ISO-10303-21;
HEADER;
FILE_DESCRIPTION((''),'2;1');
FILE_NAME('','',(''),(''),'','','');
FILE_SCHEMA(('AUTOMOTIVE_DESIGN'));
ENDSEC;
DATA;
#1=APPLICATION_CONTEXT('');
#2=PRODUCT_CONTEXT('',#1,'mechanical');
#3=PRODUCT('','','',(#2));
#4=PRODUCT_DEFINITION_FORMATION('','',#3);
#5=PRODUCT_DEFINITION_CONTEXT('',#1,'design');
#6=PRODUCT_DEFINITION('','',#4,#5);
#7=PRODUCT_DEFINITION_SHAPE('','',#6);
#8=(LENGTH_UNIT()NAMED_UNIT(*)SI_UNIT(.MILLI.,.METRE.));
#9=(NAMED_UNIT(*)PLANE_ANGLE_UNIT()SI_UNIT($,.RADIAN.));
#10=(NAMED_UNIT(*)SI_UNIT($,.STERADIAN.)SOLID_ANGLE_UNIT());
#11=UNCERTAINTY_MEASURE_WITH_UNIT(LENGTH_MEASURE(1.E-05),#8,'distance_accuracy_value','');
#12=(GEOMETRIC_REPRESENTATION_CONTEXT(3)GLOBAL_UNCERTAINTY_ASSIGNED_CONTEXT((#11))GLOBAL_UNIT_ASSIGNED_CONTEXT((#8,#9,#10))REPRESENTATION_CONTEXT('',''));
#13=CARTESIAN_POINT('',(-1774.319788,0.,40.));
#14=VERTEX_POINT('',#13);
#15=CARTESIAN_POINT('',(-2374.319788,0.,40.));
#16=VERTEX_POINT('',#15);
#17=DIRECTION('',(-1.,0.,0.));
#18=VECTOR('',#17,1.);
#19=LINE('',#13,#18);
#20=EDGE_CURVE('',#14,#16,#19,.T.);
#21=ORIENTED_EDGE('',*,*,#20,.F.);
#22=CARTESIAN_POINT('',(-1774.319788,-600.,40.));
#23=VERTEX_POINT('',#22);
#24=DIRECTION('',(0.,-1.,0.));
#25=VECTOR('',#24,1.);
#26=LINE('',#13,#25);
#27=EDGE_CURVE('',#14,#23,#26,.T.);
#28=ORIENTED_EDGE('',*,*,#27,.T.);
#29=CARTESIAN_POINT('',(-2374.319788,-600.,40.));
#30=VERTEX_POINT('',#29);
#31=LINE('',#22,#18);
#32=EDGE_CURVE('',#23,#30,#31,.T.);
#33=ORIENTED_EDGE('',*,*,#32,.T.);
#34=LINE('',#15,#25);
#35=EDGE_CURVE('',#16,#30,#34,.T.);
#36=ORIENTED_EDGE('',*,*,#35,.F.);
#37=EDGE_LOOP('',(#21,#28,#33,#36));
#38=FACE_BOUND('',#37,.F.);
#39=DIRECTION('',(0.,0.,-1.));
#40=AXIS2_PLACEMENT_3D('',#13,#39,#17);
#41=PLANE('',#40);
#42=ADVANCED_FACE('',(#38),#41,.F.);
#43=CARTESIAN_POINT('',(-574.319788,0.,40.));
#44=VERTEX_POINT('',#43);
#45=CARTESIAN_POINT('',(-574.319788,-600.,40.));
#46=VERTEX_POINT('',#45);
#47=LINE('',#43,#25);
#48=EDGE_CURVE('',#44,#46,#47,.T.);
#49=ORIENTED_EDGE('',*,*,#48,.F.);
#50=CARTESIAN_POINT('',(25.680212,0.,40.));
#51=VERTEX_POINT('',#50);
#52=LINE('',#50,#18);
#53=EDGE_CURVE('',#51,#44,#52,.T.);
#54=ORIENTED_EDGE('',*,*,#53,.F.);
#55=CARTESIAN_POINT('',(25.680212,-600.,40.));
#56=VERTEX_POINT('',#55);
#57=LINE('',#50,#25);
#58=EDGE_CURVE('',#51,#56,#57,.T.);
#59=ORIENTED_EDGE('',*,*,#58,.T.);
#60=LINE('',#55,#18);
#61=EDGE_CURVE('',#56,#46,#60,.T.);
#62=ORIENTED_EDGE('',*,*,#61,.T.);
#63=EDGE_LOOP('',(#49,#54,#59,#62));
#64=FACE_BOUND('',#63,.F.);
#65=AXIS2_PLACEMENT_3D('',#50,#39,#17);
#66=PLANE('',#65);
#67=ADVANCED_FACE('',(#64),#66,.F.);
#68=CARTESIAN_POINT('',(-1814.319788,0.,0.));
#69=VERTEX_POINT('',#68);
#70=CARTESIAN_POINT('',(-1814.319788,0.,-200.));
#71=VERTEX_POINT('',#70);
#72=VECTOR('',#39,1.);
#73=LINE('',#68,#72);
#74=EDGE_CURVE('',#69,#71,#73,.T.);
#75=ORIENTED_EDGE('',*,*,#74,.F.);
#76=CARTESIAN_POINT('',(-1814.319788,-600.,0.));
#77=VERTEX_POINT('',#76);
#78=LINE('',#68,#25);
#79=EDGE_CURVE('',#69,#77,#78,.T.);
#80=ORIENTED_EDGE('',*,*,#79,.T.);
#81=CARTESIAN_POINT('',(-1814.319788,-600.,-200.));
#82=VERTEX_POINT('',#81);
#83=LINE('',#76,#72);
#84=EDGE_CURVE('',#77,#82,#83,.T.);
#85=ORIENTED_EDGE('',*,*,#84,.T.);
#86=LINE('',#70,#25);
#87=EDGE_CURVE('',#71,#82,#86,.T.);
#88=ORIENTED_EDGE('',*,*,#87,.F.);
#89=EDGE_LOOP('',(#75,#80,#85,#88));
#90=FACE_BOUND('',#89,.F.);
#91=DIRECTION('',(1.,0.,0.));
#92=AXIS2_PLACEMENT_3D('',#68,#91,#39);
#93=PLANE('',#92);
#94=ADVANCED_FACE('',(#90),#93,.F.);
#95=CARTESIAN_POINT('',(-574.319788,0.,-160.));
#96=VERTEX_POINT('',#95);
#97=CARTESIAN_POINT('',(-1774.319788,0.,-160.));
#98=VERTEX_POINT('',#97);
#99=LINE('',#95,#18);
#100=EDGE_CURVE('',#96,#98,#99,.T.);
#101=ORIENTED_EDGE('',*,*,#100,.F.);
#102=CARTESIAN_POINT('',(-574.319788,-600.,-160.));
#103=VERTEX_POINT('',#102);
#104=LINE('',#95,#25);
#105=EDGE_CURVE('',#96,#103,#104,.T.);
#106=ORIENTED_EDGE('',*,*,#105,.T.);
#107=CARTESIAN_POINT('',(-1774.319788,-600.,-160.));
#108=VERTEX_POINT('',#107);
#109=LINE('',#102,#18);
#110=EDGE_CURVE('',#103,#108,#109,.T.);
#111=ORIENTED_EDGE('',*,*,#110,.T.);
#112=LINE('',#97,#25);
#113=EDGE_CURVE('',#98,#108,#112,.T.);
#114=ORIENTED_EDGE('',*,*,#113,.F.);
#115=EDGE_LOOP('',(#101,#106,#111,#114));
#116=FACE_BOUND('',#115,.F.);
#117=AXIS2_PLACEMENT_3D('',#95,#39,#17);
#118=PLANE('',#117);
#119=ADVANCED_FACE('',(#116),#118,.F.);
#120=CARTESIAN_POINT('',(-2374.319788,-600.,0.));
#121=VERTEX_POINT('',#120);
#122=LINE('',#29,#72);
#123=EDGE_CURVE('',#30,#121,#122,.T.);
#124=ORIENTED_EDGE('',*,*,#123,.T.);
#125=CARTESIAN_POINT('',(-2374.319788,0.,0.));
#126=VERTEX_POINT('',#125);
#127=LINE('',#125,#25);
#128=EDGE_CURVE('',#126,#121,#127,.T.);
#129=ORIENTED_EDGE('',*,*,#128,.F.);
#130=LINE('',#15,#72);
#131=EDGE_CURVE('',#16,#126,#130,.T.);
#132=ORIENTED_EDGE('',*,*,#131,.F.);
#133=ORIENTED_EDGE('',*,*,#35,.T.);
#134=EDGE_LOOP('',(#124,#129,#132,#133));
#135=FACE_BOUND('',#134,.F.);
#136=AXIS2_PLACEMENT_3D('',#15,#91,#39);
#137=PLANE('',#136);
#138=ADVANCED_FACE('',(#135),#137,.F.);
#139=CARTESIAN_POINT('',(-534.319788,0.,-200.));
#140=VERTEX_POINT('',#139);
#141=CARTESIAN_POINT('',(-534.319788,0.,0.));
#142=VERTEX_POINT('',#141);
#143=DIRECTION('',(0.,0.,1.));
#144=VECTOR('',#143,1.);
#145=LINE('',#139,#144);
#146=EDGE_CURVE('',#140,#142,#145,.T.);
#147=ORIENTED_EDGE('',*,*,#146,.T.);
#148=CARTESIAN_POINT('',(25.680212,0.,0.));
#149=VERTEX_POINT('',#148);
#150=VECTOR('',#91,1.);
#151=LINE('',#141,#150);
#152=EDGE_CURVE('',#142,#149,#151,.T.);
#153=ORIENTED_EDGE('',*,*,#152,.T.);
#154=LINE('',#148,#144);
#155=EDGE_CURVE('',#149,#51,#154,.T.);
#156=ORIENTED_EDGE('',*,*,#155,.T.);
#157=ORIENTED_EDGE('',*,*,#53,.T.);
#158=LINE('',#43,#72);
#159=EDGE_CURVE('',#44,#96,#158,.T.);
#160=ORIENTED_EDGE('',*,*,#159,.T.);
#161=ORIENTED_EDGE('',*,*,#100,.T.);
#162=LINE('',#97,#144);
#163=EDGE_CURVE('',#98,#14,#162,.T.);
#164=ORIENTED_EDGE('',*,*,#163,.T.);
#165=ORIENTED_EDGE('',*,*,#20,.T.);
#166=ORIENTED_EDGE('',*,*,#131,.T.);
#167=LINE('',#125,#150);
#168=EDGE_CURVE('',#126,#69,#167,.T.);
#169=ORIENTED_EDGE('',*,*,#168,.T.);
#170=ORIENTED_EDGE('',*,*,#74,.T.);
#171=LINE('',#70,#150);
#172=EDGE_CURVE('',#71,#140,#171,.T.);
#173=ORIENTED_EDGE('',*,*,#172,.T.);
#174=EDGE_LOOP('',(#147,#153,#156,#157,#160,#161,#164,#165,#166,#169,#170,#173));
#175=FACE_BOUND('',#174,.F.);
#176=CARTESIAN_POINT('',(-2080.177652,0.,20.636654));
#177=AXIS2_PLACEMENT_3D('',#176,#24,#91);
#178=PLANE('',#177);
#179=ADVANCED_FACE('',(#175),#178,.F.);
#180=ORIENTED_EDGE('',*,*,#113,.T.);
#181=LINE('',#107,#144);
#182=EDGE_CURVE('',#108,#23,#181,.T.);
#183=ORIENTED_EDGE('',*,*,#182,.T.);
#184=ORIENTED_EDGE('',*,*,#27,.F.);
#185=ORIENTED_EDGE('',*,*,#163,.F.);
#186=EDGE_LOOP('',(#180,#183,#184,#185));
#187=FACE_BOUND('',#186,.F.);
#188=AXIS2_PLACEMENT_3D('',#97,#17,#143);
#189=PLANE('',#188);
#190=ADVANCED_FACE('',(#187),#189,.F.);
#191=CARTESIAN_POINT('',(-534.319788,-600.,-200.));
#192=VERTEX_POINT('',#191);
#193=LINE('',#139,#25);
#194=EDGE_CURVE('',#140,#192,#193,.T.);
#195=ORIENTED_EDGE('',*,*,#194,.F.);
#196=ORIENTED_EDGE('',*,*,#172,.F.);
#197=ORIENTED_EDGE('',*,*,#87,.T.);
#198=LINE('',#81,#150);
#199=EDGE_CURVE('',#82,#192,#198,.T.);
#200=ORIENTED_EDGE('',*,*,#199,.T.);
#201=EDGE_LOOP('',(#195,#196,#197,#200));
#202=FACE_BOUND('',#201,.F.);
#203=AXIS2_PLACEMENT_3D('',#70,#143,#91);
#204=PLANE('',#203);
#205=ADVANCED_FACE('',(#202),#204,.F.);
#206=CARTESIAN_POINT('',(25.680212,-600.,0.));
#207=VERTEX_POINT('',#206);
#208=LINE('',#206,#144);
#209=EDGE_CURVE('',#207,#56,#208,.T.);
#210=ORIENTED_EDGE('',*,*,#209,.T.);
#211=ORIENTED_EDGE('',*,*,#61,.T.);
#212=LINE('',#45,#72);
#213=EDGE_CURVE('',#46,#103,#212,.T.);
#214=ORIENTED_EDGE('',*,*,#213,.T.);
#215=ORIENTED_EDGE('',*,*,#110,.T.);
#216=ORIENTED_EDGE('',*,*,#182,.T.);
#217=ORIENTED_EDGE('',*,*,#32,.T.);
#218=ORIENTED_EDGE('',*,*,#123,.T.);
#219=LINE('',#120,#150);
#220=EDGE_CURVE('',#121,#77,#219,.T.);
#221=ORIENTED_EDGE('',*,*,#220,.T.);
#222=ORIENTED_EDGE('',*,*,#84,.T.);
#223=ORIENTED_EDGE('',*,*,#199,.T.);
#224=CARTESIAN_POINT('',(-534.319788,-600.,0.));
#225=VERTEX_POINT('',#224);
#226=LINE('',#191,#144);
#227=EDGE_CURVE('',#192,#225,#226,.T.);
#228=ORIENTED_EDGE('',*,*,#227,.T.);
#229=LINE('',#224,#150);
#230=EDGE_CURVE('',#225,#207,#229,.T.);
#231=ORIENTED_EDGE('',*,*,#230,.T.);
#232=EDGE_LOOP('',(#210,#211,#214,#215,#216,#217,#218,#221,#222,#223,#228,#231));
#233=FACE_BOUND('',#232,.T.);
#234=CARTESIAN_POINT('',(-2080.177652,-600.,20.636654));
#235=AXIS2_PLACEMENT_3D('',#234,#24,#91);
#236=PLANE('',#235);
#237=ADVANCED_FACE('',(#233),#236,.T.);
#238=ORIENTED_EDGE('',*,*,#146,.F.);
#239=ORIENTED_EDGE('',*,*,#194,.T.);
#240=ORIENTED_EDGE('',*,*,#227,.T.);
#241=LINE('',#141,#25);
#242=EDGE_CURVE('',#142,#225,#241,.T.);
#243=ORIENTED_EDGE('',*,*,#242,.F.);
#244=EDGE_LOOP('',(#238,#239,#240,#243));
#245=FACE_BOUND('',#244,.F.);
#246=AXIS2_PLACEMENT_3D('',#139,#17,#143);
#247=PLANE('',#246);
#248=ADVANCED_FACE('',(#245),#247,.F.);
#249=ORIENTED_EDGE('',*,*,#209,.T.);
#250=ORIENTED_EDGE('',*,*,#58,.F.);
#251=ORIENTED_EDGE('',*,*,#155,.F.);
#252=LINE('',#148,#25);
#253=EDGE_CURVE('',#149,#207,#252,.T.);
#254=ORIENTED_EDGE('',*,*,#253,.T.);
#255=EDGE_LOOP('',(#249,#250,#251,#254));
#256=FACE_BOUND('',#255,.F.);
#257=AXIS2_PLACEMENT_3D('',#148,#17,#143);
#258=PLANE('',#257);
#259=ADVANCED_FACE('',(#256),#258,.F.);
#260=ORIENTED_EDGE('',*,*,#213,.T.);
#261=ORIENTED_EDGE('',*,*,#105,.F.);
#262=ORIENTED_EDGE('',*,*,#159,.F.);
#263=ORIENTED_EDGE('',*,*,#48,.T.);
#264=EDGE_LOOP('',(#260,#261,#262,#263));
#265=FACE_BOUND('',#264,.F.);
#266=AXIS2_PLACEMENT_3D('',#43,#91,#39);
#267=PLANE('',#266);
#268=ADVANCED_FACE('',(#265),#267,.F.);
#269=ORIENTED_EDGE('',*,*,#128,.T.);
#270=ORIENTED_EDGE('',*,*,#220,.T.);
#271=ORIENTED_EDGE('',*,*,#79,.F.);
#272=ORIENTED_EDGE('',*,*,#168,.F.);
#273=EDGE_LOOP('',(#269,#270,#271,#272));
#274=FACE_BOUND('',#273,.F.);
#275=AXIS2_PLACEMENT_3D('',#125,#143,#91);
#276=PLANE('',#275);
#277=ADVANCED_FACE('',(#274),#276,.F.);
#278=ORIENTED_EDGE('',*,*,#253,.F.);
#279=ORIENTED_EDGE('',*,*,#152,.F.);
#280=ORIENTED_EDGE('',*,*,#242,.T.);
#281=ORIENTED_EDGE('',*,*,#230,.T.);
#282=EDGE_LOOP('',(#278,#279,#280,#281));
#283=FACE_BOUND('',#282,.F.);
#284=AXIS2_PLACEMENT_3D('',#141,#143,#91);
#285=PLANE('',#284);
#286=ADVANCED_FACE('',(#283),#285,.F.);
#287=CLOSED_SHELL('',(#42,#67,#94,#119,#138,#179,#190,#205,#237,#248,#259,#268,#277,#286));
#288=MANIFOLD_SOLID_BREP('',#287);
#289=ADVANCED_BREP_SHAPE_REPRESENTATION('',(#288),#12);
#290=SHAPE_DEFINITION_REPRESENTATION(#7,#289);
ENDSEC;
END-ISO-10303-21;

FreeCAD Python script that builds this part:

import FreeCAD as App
import Part
import Sketcher

V = App.Vector


def add_polygon(sketch, points):
    """Adds a closed chain of lines whose ends are joined by coincident constraints."""
    first, n = sketch.GeometryCount, len(points)
    for a, b in zip(points, points[1:] + points[:1]):
        sketch.addGeometry(Part.LineSegment(App.Vector(*a, 0), App.Vector(*b, 0)), False)
    for i in range(n):
        sketch.addConstraint(Sketcher.Constraint("Coincident", first + i, 2, first + (i + 1) % n, 1))

doc = App.newDocument("Part")
body = doc.addObject("PartDesign::Body", "Body")

sketch1 = body.newObject("Sketcher::SketchObject", "Sketch")
sketch1.AttachmentSupport = (doc.getObject("XZ_Plane"), [""])
sketch1.MapMode = "FlatFace"
add_polygon(sketch1, [(-1774, 40), (-2374, 40), (-2374, 0), (-1814, 0), (-1814, -200), (-534, -200), (-534, 0), (26, 0), (26, 40), (-574, 40), (-574, -160), (-1774, -160)])
sketch1.addConstraint(Sketcher.Constraint("Horizontal", 0))
sketch1.addConstraint(Sketcher.Constraint("Vertical", 1))
sketch1.addConstraint(Sketcher.Constraint("Horizontal", 2))
sketch1.addConstraint(Sketcher.Constraint("Vertical", 3))
sketch1.addConstraint(Sketcher.Constraint("Horizontal", 4))
sketch1.addConstraint(Sketcher.Constraint("Vertical", 5))
sketch1.addConstraint(Sketcher.Constraint("Horizontal", 6))
sketch1.addConstraint(Sketcher.Constraint("Vertical", 7))
sketch1.addConstraint(Sketcher.Constraint("Horizontal", 8))
sketch1.addConstraint(Sketcher.Constraint("Vertical", 9))
sketch1.addConstraint(Sketcher.Constraint("Horizontal", 10))
sketch1.addConstraint(Sketcher.Constraint("Vertical", 11))
sketch1.addConstraint(Sketcher.Constraint("PointOnObject", 1, 2, -1))
sketch1.addConstraint(Sketcher.Constraint("PointOnObject", 5, 2, -1))
sketch1.addConstraint(Sketcher.Constraint("Horizontal", 0, 2, 7, 2))
sketch1.addConstraint(Sketcher.Constraint("Equal", 2, 6))
sketch1.addConstraint(Sketcher.Constraint("Equal", 0, 8))
sketch1.addConstraint(Sketcher.Constraint("Equal", 5, 9))
sketch1.addConstraint(Sketcher.Constraint("DistanceX", 0, 2, 0, 1, 600.0))
sketch1.addConstraint(Sketcher.Constraint("DistanceX", 2, 1, 2, 2, 560.0))
sketch1.addConstraint(Sketcher.Constraint("DistanceX", 4, 1, 4, 2, 1280.0))
sketch1.addConstraint(Sketcher.Constraint("DistanceY", 1, 2, 1, 1, 40.0))
sketch1.addConstraint(Sketcher.Constraint("DistanceY", 3, 2, 3, 1, 200.0))
sketch1.addConstraint(Sketcher.Constraint("DistanceX", 2, 2, -1, 1, 1814.319788))
pad1 = body.newObject("PartDesign::Pad", "Pad")
pad1.Profile = sketch1
pad1.Length = 600

doc.recompute()
